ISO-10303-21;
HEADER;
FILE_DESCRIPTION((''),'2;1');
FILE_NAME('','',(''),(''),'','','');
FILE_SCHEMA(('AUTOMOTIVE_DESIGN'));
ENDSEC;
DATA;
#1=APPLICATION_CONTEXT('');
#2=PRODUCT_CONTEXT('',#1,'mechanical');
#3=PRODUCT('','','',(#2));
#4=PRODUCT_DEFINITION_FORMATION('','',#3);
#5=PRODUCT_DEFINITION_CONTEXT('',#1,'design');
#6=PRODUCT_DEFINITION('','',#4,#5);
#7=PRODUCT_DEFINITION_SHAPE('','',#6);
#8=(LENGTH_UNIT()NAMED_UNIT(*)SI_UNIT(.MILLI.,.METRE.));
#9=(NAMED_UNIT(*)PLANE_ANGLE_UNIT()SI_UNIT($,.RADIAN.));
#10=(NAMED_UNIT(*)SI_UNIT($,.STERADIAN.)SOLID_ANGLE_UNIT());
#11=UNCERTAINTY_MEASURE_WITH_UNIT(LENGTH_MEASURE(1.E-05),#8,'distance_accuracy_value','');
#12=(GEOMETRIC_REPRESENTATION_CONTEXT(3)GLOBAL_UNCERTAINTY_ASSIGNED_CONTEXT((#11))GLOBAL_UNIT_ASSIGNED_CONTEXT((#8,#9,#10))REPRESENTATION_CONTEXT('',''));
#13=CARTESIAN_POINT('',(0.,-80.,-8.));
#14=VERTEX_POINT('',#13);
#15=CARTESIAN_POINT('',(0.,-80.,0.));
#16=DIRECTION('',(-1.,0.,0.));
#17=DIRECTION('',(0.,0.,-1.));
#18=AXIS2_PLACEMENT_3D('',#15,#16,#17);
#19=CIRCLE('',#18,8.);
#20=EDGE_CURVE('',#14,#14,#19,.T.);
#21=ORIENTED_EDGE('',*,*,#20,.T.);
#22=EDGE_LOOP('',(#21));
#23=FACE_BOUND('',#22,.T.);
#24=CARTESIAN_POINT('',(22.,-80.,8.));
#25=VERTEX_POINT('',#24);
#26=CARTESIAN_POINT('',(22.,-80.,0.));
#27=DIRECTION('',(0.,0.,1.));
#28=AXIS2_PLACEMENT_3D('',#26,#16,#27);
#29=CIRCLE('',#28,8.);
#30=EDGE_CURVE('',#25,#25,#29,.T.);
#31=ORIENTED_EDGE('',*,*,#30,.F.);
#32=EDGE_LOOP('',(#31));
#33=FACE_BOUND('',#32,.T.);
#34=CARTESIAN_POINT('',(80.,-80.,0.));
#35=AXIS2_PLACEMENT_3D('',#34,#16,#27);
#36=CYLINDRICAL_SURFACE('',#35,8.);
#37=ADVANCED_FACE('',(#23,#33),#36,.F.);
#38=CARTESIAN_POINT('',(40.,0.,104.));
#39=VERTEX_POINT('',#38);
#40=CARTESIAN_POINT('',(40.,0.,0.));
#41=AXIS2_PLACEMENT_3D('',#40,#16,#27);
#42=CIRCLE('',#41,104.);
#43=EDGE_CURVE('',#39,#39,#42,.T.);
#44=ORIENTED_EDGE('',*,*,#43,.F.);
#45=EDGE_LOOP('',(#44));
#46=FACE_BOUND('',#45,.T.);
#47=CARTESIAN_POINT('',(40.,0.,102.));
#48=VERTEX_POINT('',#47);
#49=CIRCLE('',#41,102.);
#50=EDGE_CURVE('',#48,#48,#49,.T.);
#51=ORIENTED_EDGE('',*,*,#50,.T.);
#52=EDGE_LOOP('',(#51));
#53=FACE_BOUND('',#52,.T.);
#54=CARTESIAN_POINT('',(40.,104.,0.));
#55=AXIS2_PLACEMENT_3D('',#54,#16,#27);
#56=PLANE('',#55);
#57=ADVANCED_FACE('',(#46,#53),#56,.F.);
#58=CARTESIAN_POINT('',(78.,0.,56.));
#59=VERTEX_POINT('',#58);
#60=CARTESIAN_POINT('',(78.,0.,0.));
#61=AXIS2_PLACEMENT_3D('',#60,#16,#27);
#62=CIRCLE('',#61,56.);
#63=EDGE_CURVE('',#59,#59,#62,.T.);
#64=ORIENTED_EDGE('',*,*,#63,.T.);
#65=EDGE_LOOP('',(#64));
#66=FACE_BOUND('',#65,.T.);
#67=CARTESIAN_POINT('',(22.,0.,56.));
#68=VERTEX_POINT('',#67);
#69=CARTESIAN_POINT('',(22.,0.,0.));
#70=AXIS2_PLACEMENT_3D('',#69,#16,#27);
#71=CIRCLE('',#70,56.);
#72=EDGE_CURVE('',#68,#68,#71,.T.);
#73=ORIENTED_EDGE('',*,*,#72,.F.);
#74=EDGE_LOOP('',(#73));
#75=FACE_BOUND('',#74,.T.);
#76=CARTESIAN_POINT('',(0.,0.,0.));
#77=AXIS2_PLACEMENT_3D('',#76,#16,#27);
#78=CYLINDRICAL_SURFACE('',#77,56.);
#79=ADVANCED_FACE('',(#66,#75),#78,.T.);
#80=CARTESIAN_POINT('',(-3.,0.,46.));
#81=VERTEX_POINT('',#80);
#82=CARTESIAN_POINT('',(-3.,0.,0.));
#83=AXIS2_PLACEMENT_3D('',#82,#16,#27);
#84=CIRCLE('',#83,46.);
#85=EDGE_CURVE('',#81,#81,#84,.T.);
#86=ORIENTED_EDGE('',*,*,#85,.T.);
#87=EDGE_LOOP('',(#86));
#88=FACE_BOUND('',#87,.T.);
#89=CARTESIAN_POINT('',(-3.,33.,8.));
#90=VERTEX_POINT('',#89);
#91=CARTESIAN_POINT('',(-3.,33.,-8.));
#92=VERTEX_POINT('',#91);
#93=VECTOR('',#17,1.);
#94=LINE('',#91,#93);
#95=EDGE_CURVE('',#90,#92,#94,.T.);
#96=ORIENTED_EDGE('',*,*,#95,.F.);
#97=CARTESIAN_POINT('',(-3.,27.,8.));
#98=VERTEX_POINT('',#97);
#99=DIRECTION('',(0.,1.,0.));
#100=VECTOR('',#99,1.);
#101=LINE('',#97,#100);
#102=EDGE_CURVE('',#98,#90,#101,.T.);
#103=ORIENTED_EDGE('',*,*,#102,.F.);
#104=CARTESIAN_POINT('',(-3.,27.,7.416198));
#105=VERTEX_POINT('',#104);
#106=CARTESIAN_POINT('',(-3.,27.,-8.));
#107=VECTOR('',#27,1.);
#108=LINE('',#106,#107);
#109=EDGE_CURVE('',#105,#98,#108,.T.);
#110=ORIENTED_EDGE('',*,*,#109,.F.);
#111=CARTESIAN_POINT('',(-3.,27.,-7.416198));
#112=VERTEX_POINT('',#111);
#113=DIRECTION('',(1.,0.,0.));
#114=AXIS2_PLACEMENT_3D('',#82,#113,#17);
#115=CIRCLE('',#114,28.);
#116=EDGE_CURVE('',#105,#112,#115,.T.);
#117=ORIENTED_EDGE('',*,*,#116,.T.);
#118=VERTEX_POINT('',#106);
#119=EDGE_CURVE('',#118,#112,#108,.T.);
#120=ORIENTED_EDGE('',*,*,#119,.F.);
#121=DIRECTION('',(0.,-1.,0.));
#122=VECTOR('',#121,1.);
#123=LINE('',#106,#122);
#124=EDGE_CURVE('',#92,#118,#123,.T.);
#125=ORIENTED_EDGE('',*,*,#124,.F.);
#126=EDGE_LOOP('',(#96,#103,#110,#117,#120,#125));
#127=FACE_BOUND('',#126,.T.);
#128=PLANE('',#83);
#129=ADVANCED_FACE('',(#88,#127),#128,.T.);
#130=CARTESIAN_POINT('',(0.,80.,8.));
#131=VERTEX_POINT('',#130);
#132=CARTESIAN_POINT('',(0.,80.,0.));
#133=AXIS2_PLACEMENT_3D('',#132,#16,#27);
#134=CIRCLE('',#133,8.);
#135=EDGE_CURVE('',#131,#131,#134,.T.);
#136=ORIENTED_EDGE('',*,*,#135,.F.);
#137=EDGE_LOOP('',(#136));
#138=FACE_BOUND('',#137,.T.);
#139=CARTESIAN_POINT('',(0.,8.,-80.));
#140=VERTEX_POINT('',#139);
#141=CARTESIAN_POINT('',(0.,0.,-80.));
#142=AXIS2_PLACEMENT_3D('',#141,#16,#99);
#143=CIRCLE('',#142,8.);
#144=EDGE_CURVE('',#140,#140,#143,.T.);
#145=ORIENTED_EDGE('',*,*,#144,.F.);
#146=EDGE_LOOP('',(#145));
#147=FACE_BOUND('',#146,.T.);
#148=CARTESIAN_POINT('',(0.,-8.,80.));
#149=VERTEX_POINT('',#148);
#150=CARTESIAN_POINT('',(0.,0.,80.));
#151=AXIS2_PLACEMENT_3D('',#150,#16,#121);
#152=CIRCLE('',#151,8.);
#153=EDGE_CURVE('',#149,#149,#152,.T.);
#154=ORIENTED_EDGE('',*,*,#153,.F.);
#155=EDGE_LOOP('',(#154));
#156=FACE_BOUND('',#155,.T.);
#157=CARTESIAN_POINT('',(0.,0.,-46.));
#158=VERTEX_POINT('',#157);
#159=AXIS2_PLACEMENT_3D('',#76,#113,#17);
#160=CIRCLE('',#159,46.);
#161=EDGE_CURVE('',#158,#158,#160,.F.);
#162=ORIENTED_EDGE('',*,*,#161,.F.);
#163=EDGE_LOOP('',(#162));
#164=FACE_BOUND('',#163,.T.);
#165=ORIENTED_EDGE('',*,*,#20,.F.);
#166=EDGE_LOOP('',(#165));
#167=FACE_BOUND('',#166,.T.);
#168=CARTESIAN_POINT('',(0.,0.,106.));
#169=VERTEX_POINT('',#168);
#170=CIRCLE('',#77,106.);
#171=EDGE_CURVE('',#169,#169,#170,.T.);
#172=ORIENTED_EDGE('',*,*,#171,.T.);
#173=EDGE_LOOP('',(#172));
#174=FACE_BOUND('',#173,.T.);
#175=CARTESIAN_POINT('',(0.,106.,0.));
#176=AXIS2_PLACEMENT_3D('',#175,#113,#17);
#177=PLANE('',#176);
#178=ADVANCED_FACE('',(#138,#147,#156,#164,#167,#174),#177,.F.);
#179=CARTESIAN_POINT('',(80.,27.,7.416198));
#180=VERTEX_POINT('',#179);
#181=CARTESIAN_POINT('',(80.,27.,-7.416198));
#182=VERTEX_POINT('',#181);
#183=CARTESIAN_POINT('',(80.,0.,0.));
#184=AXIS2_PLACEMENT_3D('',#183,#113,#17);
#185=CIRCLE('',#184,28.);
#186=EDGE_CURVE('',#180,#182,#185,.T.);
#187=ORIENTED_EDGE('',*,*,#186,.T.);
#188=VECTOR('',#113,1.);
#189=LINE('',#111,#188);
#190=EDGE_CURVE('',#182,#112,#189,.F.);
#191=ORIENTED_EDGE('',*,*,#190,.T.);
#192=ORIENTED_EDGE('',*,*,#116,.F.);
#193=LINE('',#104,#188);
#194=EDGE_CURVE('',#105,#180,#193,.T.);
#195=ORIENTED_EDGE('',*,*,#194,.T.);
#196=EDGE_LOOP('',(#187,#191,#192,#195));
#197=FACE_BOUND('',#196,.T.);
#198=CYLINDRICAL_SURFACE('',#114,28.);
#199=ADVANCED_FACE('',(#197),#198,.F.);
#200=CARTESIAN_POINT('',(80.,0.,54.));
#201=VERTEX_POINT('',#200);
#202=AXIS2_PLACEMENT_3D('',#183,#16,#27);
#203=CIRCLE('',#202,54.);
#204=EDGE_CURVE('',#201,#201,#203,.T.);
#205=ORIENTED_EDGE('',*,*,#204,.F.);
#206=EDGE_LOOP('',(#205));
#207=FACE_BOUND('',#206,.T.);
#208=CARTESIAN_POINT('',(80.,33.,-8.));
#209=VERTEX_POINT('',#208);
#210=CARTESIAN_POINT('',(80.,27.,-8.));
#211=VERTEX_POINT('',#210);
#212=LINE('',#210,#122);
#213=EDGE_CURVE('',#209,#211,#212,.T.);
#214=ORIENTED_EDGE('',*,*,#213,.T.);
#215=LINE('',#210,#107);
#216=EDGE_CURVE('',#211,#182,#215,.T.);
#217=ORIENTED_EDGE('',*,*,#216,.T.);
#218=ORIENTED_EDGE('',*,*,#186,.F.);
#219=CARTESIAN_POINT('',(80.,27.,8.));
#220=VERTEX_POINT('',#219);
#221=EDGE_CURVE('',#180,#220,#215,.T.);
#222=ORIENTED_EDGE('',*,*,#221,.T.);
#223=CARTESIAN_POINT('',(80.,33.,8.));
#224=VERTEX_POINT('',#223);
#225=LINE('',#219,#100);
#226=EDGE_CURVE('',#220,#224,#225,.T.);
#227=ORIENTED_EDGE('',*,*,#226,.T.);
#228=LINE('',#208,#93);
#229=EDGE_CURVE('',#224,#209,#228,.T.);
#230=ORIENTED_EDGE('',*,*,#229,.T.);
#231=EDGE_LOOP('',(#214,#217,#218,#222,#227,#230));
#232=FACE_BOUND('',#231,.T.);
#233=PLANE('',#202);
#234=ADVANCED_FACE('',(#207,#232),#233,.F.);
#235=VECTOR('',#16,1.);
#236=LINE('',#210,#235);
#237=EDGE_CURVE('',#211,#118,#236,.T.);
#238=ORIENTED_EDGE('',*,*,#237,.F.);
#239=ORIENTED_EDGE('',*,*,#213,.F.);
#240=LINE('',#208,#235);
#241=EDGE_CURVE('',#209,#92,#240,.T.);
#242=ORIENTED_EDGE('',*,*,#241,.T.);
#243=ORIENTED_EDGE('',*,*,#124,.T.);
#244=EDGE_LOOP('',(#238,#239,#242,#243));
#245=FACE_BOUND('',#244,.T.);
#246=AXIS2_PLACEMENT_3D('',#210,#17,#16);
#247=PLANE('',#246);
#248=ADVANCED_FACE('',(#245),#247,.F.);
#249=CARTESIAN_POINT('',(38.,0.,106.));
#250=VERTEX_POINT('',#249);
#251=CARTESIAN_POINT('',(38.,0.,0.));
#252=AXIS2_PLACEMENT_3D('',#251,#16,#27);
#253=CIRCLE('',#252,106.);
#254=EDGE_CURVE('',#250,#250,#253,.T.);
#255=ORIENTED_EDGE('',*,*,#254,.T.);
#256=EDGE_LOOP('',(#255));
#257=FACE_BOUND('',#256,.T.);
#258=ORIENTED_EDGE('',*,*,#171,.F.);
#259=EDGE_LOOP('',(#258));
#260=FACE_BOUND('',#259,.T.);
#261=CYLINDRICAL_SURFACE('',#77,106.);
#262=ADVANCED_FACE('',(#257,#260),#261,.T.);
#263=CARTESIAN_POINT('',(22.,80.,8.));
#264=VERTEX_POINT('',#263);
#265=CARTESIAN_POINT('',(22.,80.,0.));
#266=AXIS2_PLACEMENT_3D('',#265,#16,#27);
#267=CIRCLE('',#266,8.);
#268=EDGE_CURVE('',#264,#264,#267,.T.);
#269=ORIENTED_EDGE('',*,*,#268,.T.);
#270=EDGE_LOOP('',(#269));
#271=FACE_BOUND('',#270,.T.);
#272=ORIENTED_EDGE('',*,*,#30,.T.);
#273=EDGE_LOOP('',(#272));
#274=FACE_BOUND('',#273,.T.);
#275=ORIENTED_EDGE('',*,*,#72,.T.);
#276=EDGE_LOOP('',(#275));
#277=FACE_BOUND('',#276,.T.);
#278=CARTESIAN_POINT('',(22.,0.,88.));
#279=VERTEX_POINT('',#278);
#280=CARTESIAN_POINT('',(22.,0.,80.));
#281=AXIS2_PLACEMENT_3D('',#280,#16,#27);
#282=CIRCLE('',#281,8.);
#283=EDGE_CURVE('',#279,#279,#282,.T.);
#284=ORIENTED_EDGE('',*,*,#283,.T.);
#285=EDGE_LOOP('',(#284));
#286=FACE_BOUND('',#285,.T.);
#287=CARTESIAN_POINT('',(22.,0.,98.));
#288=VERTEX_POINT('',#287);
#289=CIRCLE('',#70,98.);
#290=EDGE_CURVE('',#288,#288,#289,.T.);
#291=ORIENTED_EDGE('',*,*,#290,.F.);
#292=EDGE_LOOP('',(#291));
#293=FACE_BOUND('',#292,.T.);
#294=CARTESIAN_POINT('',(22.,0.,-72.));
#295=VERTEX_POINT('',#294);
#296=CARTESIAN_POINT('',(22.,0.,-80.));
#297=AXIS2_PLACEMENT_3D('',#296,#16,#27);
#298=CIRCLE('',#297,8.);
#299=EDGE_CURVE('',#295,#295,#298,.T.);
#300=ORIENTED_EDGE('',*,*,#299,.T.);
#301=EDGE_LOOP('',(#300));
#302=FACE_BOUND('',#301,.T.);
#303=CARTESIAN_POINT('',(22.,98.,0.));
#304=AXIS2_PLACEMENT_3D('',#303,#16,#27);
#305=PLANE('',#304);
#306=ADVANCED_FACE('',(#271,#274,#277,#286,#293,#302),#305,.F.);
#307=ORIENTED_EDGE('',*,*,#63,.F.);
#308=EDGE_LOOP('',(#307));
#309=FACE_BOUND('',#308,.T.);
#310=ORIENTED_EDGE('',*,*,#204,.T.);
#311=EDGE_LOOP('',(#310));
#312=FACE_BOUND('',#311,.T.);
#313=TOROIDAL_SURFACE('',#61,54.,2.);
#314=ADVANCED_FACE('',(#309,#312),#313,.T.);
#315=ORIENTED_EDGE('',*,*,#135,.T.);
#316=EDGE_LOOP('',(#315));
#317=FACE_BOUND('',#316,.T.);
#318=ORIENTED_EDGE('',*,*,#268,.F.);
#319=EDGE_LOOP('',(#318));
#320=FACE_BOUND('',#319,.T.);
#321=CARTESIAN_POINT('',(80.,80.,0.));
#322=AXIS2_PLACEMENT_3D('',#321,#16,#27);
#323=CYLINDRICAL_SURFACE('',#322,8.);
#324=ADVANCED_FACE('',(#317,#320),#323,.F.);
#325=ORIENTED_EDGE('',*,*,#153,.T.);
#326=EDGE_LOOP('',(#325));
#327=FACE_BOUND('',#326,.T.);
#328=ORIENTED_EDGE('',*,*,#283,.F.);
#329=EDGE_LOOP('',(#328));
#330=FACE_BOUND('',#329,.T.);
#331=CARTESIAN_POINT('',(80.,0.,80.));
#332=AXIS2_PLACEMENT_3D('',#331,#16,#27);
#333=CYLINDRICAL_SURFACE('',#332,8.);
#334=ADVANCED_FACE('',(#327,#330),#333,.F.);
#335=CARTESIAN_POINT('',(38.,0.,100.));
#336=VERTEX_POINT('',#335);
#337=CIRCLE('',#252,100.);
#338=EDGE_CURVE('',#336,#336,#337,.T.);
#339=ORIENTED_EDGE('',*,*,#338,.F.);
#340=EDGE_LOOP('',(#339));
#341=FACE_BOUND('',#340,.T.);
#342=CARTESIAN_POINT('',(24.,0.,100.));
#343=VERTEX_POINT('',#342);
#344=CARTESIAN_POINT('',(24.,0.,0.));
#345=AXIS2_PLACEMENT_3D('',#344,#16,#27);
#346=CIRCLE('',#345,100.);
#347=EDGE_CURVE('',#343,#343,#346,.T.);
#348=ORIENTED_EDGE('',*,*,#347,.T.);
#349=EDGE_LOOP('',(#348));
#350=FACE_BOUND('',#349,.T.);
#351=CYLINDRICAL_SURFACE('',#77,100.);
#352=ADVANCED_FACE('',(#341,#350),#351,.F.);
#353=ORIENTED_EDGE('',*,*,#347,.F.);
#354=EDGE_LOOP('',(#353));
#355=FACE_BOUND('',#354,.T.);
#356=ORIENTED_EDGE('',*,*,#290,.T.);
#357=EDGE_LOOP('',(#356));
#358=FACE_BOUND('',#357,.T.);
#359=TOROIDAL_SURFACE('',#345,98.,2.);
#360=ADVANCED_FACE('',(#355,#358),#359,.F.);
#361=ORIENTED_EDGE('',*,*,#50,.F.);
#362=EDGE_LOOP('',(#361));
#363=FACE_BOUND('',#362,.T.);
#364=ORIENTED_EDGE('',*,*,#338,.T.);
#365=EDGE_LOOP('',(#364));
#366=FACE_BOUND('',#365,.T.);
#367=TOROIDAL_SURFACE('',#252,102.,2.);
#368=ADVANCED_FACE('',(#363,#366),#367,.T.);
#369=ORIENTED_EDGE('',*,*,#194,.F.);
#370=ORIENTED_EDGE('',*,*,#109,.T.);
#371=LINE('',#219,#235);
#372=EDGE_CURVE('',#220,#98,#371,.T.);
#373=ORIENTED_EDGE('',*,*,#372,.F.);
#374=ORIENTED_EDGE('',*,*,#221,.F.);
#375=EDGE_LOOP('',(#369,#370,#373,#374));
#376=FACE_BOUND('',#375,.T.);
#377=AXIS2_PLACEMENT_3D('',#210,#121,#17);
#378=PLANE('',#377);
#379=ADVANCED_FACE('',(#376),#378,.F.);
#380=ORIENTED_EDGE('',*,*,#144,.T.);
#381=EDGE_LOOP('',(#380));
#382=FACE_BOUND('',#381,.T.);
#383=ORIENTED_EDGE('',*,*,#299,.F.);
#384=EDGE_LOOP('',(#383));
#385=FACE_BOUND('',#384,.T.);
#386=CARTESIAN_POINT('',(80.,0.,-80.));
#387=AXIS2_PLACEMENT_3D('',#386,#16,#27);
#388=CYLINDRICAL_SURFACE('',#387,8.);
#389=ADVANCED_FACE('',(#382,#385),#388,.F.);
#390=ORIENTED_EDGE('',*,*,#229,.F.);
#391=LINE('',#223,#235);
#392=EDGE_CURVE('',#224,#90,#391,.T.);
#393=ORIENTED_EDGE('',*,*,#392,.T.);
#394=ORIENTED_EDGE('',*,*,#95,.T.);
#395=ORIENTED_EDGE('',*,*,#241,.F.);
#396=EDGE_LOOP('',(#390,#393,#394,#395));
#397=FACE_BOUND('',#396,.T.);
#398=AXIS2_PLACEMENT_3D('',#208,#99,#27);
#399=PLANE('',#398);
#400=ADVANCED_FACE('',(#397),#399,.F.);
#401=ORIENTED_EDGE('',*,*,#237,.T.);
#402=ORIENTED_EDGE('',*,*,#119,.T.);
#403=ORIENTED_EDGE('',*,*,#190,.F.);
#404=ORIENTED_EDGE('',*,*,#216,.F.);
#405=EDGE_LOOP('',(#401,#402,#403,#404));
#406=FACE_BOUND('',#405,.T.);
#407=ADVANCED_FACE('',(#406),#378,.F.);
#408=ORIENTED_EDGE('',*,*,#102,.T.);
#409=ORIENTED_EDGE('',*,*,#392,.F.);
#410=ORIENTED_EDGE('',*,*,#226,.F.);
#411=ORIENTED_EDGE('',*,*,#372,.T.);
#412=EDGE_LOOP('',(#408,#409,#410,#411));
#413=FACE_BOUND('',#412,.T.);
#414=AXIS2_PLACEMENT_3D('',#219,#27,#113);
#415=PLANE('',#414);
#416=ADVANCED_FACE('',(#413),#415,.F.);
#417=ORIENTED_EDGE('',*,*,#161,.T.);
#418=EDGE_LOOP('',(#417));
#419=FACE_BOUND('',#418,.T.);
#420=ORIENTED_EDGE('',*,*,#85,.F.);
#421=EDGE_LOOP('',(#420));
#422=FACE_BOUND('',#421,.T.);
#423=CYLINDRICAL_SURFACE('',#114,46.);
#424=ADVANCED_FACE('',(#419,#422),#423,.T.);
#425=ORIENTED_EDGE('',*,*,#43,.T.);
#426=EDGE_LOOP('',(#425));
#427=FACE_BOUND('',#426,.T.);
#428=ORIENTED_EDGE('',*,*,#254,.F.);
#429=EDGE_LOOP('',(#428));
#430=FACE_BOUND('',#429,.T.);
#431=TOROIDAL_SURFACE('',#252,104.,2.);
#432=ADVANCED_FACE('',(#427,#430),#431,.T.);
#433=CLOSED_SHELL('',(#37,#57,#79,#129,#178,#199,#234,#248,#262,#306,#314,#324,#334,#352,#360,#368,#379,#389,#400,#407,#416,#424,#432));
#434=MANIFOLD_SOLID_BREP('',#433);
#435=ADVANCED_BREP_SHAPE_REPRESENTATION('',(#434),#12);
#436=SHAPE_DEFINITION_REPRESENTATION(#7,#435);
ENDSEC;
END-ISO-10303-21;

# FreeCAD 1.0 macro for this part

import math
import FreeCAD as App
import Part
import Sketcher
from FreeCAD import Vector


def add_polygon(sketch, points):
    """Adds a closed chain of lines whose ends are joined by coincident constraints."""
    first, n = sketch.GeometryCount, len(points)
    for a, b in zip(points, points[1:] + points[:1]):
        sketch.addGeometry(Part.LineSegment(App.Vector(*a, 0), App.Vector(*b, 0)), False)
    for i in range(n):
        sketch.addConstraint(Sketcher.Constraint("Coincident", first + i, 2, first + (i + 1) % n, 1))

doc = App.newDocument("Part")
body = doc.addObject("PartDesign::Body", "Body")

# Sketch on XY plane
sketch1 = body.newObject("Sketcher::SketchObject", "Sketch")
sketch1.AttachmentSupport = (doc.getObject("XY_Plane"), [""])
sketch1.MapMode = "FlatFace"
sketch1.addGeometry([
    Part.LineSegment(Vector(0, 0, 0), Vector(80, 0, 0)),  # 0
    Part.LineSegment(Vector(80, 0, 0), Vector(80, 54, 0)),  # 1
    Part.ArcOfCircle(Part.Circle(Vector(78, 54, 0), Vector(0, 0, 1), 2), math.radians(0), math.radians(90)),  # 2
    Part.LineSegment(Vector(78, 56, 0), Vector(22, 56, 0)),  # 3
    Part.LineSegment(Vector(22, 56, 0), Vector(22, 98, 0)),  # 4
    Part.ArcOfCircle(Part.Circle(Vector(24, 98, 0), Vector(0, 0, 1), 2), math.radians(90), math.radians(180)),  # 5
    Part.LineSegment(Vector(24, 100, 0), Vector(38, 100, 0)),  # 6
    Part.ArcOfCircle(Part.Circle(Vector(38, 102, 0), Vector(0, 0, 1), 2), math.radians(-90), math.radians(0)),  # 7
    Part.LineSegment(Vector(40, 102, 0), Vector(40, 104, 0)),  # 8
    Part.ArcOfCircle(Part.Circle(Vector(38, 104, 0), Vector(0, 0, 1), 2), math.radians(0), math.radians(90)),  # 9
    Part.LineSegment(Vector(38, 106, 0), Vector(0, 106, 0)),  # 10
    Part.LineSegment(Vector(0, 106, 0), Vector(0, 0, 0)),  # 11
], False)
sketch1.addConstraint([
    Sketcher.Constraint("Coincident", 0, 2, 1, 1),
    Sketcher.Constraint("Tangent", 1, 2, 2, 1),
    Sketcher.Constraint("Tangent", 2, 2, 3, 1),
    Sketcher.Constraint("Coincident", 3, 2, 4, 1),
    Sketcher.Constraint("Tangent", 4, 2, 5, 2),
    Sketcher.Constraint("Tangent", 5, 1, 6, 1),
    Sketcher.Constraint("Tangent", 6, 2, 7, 1),
    Sketcher.Constraint("Tangent", 7, 2, 8, 1),
    Sketcher.Constraint("Tangent", 8, 2, 9, 1),
    Sketcher.Constraint("Tangent", 9, 2, 10, 1),
    Sketcher.Constraint("Coincident", 10, 2, 11, 1),
    Sketcher.Constraint("Coincident", 11, 2, 0, 1),
    Sketcher.Constraint("Horizontal", 0),
    Sketcher.Constraint("Vertical", 1),
    Sketcher.Constraint("Horizontal", 3),
    Sketcher.Constraint("Vertical", 4),
    Sketcher.Constraint("Horizontal", 6),
    Sketcher.Constraint("Vertical", 8),
    Sketcher.Constraint("Horizontal", 10),
    Sketcher.Constraint("Vertical", 11),
    Sketcher.Constraint("Coincident", 11, 2, -1, 1),
    Sketcher.Constraint("Equal", 2, 5),
    Sketcher.Constraint("Equal", 5, 7),
    Sketcher.Constraint("Equal", 7, 9),
    Sketcher.Constraint("Radius", 2, 2.0),
    Sketcher.Constraint("DistanceX", 0, 1, 0, 2, 80.0),
    Sketcher.Constraint("DistanceX", 3, 2, 3, 1, 56.0),
    Sketcher.Constraint("DistanceX", 6, 1, 6, 2, 14.0),
    Sketcher.Constraint("DistanceY", 1, 1, 1, 2, 54.0),
    Sketcher.Constraint("DistanceY", 4, 1, 4, 2, 42.0),
    Sketcher.Constraint("DistanceY", 8, 1, 8, 2, 2.0),
])
revolution = body.newObject("PartDesign::Revolution", "Revolution")
revolution.Profile = sketch1
revolution.ReferenceAxis = (sketch1, ["H_Axis"])
revolution.Angle = 360

# Sketch on YZ plane
sketch2 = body.newObject("Sketcher::SketchObject", "Sketch001")
sketch2.AttachmentSupport = (doc.getObject("YZ_Plane"), [""])
sketch2.MapMode = "FlatFace"
sketch2.addGeometry(Part.Circle(Vector(0, 0, 0), Vector(0, 0, 1), 46), False)
sketch2.addConstraint([
    Sketcher.Constraint("Coincident", 0, 3, -1, 1),
    Sketcher.Constraint("Diameter", 0, 92.0),
])
pad1 = body.newObject("PartDesign::Pad", "Pad")
pad1.Profile = sketch2
pad1.Length = 3
pad1.Reversed = True

# Sketch on YZ plane
sketch3 = body.newObject("Sketcher::SketchObject", "Sketch002")
sketch3.AttachmentSupport = (doc.getObject("YZ_Plane"), [""])
sketch3.MapMode = "FlatFace"
sketch3.AttachmentOffset = App.Placement(Vector(0, 0, 80), App.Rotation())
sketch3.addGeometry(Part.Circle(Vector(0, 0, 0), Vector(0, 0, 1), 28), False)
sketch3.addConstraint([
    Sketcher.Constraint("Coincident", 0, 3, -1, 1),
    Sketcher.Constraint("Diameter", 0, 56.0),
])
pocket1 = body.newObject("PartDesign::Pocket", "Pocket")
pocket1.Profile = sketch3
pocket1.Type = "ThroughAll"

# Sketch on YZ plane
sketch4 = body.newObject("Sketcher::SketchObject", "Sketch003")
sketch4.AttachmentSupport = (doc.getObject("YZ_Plane"), [""])
sketch4.MapMode = "FlatFace"
sketch4.addGeometry(Part.Circle(Vector(80, 0, 0), Vector(0, 0, 1), 8), False)
sketch4.addConstraint([
    Sketcher.Constraint("PointOnObject", 0, 3, -1),
    Sketcher.Constraint("Diameter", 0, 16.0),
    Sketcher.Constraint("DistanceX", -1, 1, 0, 3, 80.0),
])
pocket2 = body.newObject("PartDesign::Pocket", "Pocket001")
pocket2.Profile = sketch4
pocket2.Type = "ThroughAll"
pocket2.Reversed = True
doc.recompute()

polarpattern = body.newObject("PartDesign::PolarPattern", "PolarPattern")
polarpattern.Originals = [pocket2]
polarpattern.Axis = (doc.getObject("X_Axis"), [""])
polarpattern.Angle = 360
polarpattern.Occurrences = 4
body.Tip = polarpattern

# Sketch on YZ plane
sketch5 = body.newObject("Sketcher::SketchObject", "Sketch004")
sketch5.AttachmentSupport = (doc.getObject("YZ_Plane"), [""])
sketch5.MapMode = "FlatFace"
sketch5.AttachmentOffset = App.Placement(Vector(0, 0, -3), App.Rotation())
add_polygon(sketch5, [(33, -8), (27, -8), (27, 8), (33, 8)])  # lines 0-3
sketch5.addConstraint([
    Sketcher.Constraint("Horizontal", 0),
    Sketcher.Constraint("Vertical", 1),
    Sketcher.Constraint("Horizontal", 2),
    Sketcher.Constraint("Vertical", 3),
    Sketcher.Constraint("DistanceX", 0, 2, 0, 1, 6.0),
    Sketcher.Constraint("DistanceY", 1, 1, 1, 2, 16.0),
    Sketcher.Constraint("DistanceX", -1, 1, 0, 2, 27.0),
    Sketcher.Constraint("DistanceY", 0, 2, -1, 1, 8.0),
])
pocket3 = body.newObject("PartDesign::Pocket", "Pocket002")
pocket3.Profile = sketch5
pocket3.Type = "ThroughAll"
pocket3.Reversed = True

doc.recompute()
